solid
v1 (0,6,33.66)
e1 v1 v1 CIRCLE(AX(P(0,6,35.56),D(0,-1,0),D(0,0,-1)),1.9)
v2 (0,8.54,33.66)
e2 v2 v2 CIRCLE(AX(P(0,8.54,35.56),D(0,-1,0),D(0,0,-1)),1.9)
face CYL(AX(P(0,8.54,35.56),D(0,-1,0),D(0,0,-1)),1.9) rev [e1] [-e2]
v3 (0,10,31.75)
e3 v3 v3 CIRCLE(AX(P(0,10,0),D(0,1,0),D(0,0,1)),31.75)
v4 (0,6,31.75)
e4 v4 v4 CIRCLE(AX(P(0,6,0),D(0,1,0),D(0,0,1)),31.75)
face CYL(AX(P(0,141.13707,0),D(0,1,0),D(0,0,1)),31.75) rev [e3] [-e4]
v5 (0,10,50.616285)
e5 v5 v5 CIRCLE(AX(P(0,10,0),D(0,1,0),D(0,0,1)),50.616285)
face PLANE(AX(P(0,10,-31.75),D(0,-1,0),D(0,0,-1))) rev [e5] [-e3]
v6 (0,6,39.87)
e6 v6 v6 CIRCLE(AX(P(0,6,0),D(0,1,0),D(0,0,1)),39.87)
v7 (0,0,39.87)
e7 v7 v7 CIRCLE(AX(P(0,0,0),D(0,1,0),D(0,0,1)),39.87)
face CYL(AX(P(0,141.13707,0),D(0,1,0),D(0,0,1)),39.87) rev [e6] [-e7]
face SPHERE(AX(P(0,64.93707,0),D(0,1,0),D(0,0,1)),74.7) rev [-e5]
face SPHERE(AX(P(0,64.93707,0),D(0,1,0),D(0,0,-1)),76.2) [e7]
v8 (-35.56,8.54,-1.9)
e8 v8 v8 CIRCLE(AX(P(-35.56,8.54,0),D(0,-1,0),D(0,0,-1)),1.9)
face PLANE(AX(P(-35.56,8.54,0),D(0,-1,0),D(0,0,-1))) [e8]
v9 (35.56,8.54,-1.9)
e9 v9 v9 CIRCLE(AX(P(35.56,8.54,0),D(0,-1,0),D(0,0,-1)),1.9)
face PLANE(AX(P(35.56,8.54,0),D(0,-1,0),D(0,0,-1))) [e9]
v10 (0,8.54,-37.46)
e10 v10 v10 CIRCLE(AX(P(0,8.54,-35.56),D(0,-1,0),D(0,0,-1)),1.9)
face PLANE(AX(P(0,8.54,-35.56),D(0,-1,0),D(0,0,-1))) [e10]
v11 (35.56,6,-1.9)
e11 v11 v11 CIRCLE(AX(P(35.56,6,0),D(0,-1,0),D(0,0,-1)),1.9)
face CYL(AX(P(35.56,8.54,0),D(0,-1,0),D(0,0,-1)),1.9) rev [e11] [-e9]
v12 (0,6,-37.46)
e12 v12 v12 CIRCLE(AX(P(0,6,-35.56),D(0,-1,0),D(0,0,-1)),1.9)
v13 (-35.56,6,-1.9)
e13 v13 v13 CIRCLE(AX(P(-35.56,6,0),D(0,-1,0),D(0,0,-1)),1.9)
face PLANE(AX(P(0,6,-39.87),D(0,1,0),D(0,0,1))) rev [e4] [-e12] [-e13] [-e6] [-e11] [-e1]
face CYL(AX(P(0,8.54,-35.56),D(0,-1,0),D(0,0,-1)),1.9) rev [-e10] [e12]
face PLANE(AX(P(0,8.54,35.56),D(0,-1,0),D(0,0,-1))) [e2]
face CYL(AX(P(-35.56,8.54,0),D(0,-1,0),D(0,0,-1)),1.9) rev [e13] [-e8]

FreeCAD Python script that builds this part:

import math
import FreeCAD as App
import Part
import Sketcher
from FreeCAD import Vector

doc = App.newDocument("Part")
body = doc.addObject("PartDesign::Body", "Body")

# Sketch on YZ plane
sketch1 = body.newObject("Sketcher::SketchObject", "Sketch")
sketch1.AttachmentSupport = (doc.getObject("YZ_Plane"), [""])
sketch1.MapMode = "FlatFace"
sketch1.addGeometry([
    Part.LineSegment(Vector(141.1, 0, 0), Vector(139.6, 0, 0)),  # 0
    Part.ArcOfCircle(Part.Circle(Vector(64.9, 0, 0), Vector(0, 0, 1), 74.7), math.radians(-137), math.radians(0)),  # 1
    Part.LineSegment(Vector(10, -50.6, 0), Vector(10, -31.8, 0)),  # 2
    Part.LineSegment(Vector(10, -31.8, 0), Vector(6, -31.8, 0)),  # 3
    Part.LineSegment(Vector(6, -31.8, 0), Vector(6, -39.9, 0)),  # 4
    Part.LineSegment(Vector(6, -39.9, 0), Vector(0, -39.9, 0)),  # 5
    Part.ArcOfCircle(Part.Circle(Vector(64.9, 0, 0), Vector(0, 0, 1), 76.2), math.radians(-148), math.radians(0)),  # 6
], False)
sketch1.addConstraint([
    Sketcher.Constraint("Coincident", 0, 2, 1, 2),
    Sketcher.Constraint("Coincident", 1, 1, 2, 1),
    Sketcher.Constraint("Coincident", 2, 2, 3, 1),
    Sketcher.Constraint("Coincident", 3, 2, 4, 1),
    Sketcher.Constraint("Coincident", 4, 2, 5, 1),
    Sketcher.Constraint("Coincident", 5, 2, 6, 1),
    Sketcher.Constraint("Coincident", 6, 2, 0, 1),
    Sketcher.Constraint("Horizontal", 0),
    Sketcher.Constraint("Vertical", 2),
    Sketcher.Constraint("Horizontal", 3),
    Sketcher.Constraint("Vertical", 4),
    Sketcher.Constraint("Horizontal", 5),
    Sketcher.Constraint("Coincident", 6, 3, 1, 3),
    Sketcher.Constraint("PointOnObject", 1, 3, -1),
    Sketcher.Constraint("PointOnObject", 0, 2, -1),
    Sketcher.Constraint("PointOnObject", 5, 2, -2),
    Sketcher.Constraint("Radius", 1, 74.7),
    Sketcher.Constraint("Radius", 6, 76.2),
    Sketcher.Constraint("DistanceX", 3, 2, 3, 1, 4.0),
    Sketcher.Constraint("DistanceX", 5, 2, 5, 1, 6.0),
    Sketcher.Constraint("DistanceY", 4, 2, 4, 1, 8.12),
    Sketcher.Constraint("DistanceY", 2, 2, -1, 1, 31.75),
])
revolution = body.newObject("PartDesign::Revolution", "Revolution")
revolution.Profile = sketch1
revolution.ReferenceAxis = (sketch1, ["H_Axis"])
revolution.Angle = 360

# Sketch on XZ plane
sketch2 = body.newObject("Sketcher::SketchObject", "Sketch001")
sketch2.AttachmentSupport = (doc.getObject("XZ_Plane"), [""])
sketch2.MapMode = "FlatFace"
sketch2.AttachmentOffset = App.Placement(Vector(0, 0, -6), App.Rotation())
sketch2.addGeometry([
    Part.Circle(Vector(0, 35.6, 0), Vector(0, 0, 1), 1.9),
    Part.Circle(Vector(35.6, 0, 0), Vector(0, 0, 1), 1.9),
    Part.Circle(Vector(0, -35.6, 0), Vector(0, 0, 1), 1.9),
    Part.Circle(Vector(-35.6, 0, 0), Vector(0, 0, 1), 1.9),
], False)
sketch2.addConstraint([
    Sketcher.Constraint("Equal", 0, 1),
    Sketcher.Constraint("Equal", 1, 2),
    Sketcher.Constraint("Equal", 2, 3),
    Sketcher.Constraint("Symmetric", 0, 3, 2, 3, -1, 1),
    Sketcher.Constraint("Symmetric", 1, 3, 3, 3, -1, 1),
    Sketcher.Constraint("PointOnObject", 0, 3, -2),
    Sketcher.Constraint("PointOnObject", 1, 3, -1),
    Sketcher.Constraint("Diameter", 0, 3.8),
    Sketcher.Constraint("DistanceY", -1, 1, 0, 3, 35.56),
    Sketcher.Constraint("DistanceX", -1, 1, 1, 3, 35.56),
])
pocket1 = body.newObject("PartDesign::Pocket", "Pocket")
pocket1.Profile = sketch2
pocket1.Length = 2.54

doc.recompute()
